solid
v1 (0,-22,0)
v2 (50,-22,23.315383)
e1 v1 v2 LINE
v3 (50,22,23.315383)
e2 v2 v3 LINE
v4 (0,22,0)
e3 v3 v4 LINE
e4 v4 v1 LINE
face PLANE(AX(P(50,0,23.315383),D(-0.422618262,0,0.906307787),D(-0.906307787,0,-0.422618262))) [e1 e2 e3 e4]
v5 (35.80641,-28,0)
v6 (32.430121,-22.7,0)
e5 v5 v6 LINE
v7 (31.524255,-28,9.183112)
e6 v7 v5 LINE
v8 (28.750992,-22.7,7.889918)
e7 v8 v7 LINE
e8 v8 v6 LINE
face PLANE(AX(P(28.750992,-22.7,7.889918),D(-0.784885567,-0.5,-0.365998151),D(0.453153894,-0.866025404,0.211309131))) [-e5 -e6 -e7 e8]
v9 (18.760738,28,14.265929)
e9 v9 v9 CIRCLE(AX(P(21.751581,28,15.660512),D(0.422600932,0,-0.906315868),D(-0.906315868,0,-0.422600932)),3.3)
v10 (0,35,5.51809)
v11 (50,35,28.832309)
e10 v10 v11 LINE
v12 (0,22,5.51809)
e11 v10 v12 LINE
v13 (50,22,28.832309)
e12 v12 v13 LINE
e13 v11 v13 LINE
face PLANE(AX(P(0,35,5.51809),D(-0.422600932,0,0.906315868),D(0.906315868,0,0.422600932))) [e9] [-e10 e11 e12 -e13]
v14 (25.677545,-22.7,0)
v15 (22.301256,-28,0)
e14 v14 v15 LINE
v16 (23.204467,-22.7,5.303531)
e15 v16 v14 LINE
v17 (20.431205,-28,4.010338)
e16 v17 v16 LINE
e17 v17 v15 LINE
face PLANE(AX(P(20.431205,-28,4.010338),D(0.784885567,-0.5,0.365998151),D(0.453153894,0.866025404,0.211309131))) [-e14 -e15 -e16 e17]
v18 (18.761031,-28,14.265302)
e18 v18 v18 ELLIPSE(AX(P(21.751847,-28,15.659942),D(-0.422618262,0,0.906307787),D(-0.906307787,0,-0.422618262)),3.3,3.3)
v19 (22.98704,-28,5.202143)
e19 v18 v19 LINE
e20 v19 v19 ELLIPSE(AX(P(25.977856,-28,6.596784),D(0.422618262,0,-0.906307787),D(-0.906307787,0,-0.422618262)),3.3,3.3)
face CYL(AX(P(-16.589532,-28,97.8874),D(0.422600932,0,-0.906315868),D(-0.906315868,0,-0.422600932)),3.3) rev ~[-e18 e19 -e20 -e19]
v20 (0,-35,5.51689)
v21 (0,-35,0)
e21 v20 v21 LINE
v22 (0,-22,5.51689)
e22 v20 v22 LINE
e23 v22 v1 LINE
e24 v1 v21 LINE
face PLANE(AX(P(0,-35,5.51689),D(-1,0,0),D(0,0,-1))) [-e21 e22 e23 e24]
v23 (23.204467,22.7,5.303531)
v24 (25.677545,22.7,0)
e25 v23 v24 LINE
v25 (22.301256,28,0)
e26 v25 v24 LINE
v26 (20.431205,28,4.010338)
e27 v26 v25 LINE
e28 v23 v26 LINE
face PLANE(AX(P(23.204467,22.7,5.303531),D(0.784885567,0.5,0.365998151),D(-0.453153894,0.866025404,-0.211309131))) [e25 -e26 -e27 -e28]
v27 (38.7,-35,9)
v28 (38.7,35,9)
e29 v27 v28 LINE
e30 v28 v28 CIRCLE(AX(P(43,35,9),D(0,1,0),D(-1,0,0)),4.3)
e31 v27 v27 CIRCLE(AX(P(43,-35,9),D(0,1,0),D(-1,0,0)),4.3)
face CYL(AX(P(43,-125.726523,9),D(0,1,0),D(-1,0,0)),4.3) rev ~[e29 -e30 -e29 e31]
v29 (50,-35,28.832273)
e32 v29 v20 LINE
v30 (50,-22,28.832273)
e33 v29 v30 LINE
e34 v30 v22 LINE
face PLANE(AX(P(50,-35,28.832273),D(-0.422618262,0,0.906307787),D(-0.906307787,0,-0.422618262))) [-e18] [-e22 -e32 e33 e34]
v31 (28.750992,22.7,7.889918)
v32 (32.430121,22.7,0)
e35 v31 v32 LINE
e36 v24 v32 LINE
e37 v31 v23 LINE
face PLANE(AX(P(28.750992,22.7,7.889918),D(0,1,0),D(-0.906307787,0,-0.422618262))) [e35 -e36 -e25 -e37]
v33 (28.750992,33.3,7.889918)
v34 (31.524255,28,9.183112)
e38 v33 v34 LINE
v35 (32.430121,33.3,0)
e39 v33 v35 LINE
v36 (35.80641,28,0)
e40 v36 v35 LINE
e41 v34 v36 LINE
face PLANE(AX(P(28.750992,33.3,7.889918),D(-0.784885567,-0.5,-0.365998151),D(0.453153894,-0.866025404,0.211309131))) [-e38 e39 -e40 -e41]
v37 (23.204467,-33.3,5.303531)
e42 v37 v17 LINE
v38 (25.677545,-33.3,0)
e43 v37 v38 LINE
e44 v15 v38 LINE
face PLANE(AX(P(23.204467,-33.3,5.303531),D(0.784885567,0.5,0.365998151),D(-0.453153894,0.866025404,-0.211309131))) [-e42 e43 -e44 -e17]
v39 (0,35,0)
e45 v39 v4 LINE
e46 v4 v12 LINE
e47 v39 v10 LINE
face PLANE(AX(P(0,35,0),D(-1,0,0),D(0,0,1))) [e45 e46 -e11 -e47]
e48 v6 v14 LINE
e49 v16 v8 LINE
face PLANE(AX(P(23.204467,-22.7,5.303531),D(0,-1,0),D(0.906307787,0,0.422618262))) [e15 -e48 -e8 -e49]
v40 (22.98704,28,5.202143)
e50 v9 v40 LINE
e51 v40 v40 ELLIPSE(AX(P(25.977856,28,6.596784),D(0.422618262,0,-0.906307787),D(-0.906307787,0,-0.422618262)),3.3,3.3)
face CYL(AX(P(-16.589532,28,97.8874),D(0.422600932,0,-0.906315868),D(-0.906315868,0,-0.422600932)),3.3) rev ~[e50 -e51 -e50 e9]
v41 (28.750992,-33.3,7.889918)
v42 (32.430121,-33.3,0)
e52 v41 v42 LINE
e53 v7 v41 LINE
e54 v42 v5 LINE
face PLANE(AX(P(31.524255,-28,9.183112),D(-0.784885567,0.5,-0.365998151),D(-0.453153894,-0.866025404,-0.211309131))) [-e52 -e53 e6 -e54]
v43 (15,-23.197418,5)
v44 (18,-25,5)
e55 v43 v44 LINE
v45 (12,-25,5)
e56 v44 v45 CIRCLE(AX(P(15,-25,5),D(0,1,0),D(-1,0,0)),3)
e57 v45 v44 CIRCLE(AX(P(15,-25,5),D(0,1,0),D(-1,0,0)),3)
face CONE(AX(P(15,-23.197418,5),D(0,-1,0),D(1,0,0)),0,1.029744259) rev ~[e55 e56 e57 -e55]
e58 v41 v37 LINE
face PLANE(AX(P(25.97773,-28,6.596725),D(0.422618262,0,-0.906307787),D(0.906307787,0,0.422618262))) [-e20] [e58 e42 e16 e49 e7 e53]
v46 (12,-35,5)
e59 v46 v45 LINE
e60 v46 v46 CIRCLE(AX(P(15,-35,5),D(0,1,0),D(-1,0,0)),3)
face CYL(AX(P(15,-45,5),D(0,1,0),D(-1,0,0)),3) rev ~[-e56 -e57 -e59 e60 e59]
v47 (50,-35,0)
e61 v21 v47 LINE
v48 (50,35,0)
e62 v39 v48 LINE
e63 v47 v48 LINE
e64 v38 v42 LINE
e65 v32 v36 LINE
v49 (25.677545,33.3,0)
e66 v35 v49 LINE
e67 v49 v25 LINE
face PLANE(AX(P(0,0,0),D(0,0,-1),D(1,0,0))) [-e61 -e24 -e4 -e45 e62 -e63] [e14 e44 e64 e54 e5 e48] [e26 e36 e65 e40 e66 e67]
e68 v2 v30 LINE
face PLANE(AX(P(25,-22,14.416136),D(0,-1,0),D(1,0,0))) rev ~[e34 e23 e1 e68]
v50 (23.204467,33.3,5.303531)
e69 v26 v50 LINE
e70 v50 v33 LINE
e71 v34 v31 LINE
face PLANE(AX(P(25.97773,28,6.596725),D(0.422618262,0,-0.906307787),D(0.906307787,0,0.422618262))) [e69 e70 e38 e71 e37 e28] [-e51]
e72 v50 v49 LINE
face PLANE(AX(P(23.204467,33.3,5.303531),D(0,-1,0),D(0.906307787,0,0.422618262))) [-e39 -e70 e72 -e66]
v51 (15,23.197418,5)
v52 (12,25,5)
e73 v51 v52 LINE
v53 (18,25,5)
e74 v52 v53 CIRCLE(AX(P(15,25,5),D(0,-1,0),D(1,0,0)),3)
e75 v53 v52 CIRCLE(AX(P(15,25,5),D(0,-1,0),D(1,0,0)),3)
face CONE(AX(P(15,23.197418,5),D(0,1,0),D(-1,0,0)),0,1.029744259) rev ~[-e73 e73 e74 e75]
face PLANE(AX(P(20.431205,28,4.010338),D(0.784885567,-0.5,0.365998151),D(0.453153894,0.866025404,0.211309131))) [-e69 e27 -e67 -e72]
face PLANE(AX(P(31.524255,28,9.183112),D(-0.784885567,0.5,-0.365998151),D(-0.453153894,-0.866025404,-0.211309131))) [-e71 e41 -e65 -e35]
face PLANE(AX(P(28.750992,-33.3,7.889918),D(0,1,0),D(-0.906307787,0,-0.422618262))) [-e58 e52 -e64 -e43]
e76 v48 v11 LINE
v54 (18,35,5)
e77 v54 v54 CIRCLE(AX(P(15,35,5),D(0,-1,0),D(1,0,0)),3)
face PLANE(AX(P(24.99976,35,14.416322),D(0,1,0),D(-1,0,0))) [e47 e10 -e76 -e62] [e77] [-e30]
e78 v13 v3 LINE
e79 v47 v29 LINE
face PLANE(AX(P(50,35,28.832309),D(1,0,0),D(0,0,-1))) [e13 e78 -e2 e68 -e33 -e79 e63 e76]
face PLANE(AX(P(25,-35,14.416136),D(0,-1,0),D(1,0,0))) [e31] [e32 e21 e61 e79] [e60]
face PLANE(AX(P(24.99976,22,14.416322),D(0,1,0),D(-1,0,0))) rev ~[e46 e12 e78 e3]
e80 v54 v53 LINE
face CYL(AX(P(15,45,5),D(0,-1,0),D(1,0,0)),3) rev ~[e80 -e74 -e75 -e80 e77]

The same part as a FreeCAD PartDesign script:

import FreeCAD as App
import Part
import Sketcher

V = App.Vector
Q = App.Units.Quantity


def add_polygon(sketch, points):
    """Adds a closed chain of lines whose ends are joined by coincident constraints."""
    first, n = sketch.GeometryCount, len(points)
    for a, b in zip(points, points[1:] + points[:1]):
        sketch.addGeometry(Part.LineSegment(App.Vector(*a, 0), App.Vector(*b, 0)), False)
    for i in range(n):
        sketch.addConstraint(Sketcher.Constraint("Coincident", first + i, 2, first + (i + 1) % n, 1))

doc = App.newDocument("Part")
params = doc.addObject("Spreadsheet::Sheet", "Params")
for row, (alias, value) in enumerate([
    ("sketch1_width", "50 mm"),
    ("pad1_length", "70 mm"),
    ("pad2_length", "13 mm"),
    ("pad3_length", "13 mm"),
    ("sketch4_diameter", "6.6 mm"),
    ("hole_diameter", "6.6 mm"),
    ("pocket1_length", "15 mm"),
    ("sketch6_diameter", "8.6 mm"),
    ("hole2_diameter", "8.6 mm"),
    ("sketch7_diameter", "6 mm"),
    ("hole3_diameter", "6 mm"),
    ("hole3_depth", "10 mm"),
    ("sketch8_diameter", "6 mm"),
    ("hole4_diameter", "6 mm"),
    ("hole4_depth", "10 mm"),
], start=1):
    params.set(f"A{row}", alias)
    params.set(f"B{row}", "=" + value)
    params.setAlias(f"B{row}", alias)

body = doc.addObject("PartDesign::Body", "Body")

# Sketch on XZ plane
sketch1 = body.newObject("Sketcher::SketchObject", "Sketch")
sketch1.AttachmentSupport = (doc.getObject("XZ_Plane"), [""])
sketch1.MapMode = "FlatFace"
add_polygon(sketch1, [(50, 23.315383), (0, 0), (50, 0)])  # lines 0-2
sketch1.addConstraint([
    Sketcher.Constraint("Horizontal", 1),
    Sketcher.Constraint("Vertical", 2),
    Sketcher.Constraint("Coincident", 0, 2, -1, 1),
    Sketcher.Constraint("DistanceX", 1, 1, 1, 2, 50.0),
    Sketcher.Constraint("Angle", 0, Q("-155 deg")),
])
sketch1.setExpression("Constraints[6]", "Params.sketch1_width")
pad1 = body.newObject("PartDesign::Pad", "Pad")
pad1.Profile = sketch1
pad1.setExpression("Length", "Params.pad1_length")
pad1.Midplane = True

# Sketch on XZ plane
sketch2 = body.newObject("Sketcher::SketchObject", "Sketch001")
sketch2.AttachmentSupport = (doc.getObject("XZ_Plane"), [""])
sketch2.MapMode = "FlatFace"
sketch2.AttachmentOffset = App.Placement(V(0, 0, 35), App.Rotation())
add_polygon(sketch2, [(0, 5.51689), (0, 0), (50, 23.315383), (50, 28.832273)])  # lines 0-3
sketch2.addConstraint([
    Sketcher.Constraint("Vertical", 0),
    Sketcher.Constraint("Vertical", 2),
    Sketcher.Constraint("Coincident", 0, 2, -1, 1),
    Sketcher.Constraint("Parallel", 1, 3),
    Sketcher.Constraint("Angle", 1, Q("25 deg")),
    Sketcher.Constraint("DistanceX", -1, 1, 1, 2, 50.0),
    Sketcher.Constraint("DistanceY", 0, 2, 0, 1, 5.51689),
])
pad2 = body.newObject("PartDesign::Pad", "Pad001")
pad2.Profile = sketch2
pad2.setExpression("Length", "Params.pad2_length")
pad2.Reversed = True

# Sketch on XZ plane
sketch3 = body.newObject("Sketcher::SketchObject", "Sketch002")
sketch3.AttachmentSupport = (doc.getObject("XZ_Plane"), [""])
sketch3.MapMode = "FlatFace"
sketch3.AttachmentOffset = App.Placement(V(0, 0, -35), App.Rotation())
add_polygon(sketch3, [(50, 28.832309), (50, 23.315383), (0, 0), (0, 5.51809)])  # lines 0-3
sketch3.addConstraint([
    Sketcher.Constraint("Vertical", 0),
    Sketcher.Constraint("Vertical", 2),
    Sketcher.Constraint("Coincident", 1, 2, -1, 1),
    Sketcher.Constraint("Angle", 1, Q("-155 deg")),
    Sketcher.Constraint("DistanceX", -1, 1, 0, 2, 50.0),
    Sketcher.Constraint("DistanceY", 2, 1, 2, 2, 5.51809),
    Sketcher.Constraint("DistanceY", 0, 2, 0, 1, 5.516926),
])
pad3 = body.newObject("PartDesign::Pad", "Pad002")
pad3.Profile = sketch3
pad3.setExpression("Length", "Params.pad3_length")

# Sketch on an angled plane
sketch4 = body.newObject("Sketcher::SketchObject", "Sketch003")
sketch4.Placement = App.Placement(V(-2.113483, 0, 4.532606), App.Rotation(V(0.906315868, 0, 0.422600932), V(0, 1, 0), V(-0.422600932, 0, 0.906315868), "ZXY"))
sketch4.addGeometry([
    Part.Circle(V(26.33195, 28, 0), V(0, 0, 1), 3.3),
    Part.Circle(V(26.33195, -28, 0), V(0, 0, 1), 3.3),
], False)
sketch4.addConstraint([
    Sketcher.Constraint("Equal", 0, 1),
    Sketcher.Constraint("Symmetric", 0, 3, 1, 3, -1),
    Sketcher.Constraint("Diameter", 0, 6.6),
    Sketcher.Constraint("DistanceY", -1, 1, 0, 3, 28.0),
    Sketcher.Constraint("DistanceX", -1, 1, 0, 3, 26.33195),
])
sketch4.setExpression("Constraints[2]", "Params.sketch4_diameter")
doc.recompute()
hole = body.newObject("PartDesign::Hole", "Hole")
hole.Profile = sketch4
hole.ThreadType = "None"
hole.setExpression("Diameter", "Params.hole_diameter")
hole.DepthType = "ThroughAll"

# Sketch on an angled plane
sketch5 = body.newObject("Sketcher::SketchObject", "Sketch004")
sketch5.Placement = App.Placement(V(2.113091, 0, -4.531539), App.Rotation(V(0.906307787, 0, 0.422618262), V(0, -1, 0), V(0.422618262, 0, -0.906307787), "ZXY"))
add_polygon(sketch5, [(20.211802, -28), (23.271759, -33.3), (29.391672, -33.3), (32.451628, -28), (29.391672, -22.7), (23.271759, -22.7)])  # lines 0-5
add_polygon(sketch5, [(20.211802, 28), (23.271759, 22.7), (29.391672, 22.7), (32.451628, 28), (29.391672, 33.3), (23.271759, 33.3)])  # lines 6-11
sketch5.addConstraint([
    Sketcher.Constraint("Horizontal", 1),
    Sketcher.Constraint("Horizontal", 4),
    Sketcher.Constraint("Horizontal", 7),
    Sketcher.Constraint("Horizontal", 10),
    Sketcher.Constraint("Symmetric", 4, 2, 6, 2, -1),
    Sketcher.Constraint("Symmetric", 2, 2, 8, 2, -1),
    Sketcher.Constraint("Symmetric", 1, 2, 9, 2, -1),
    Sketcher.Constraint("Symmetric", 5, 2, 11, 2, -1),
    Sketcher.Constraint("Parallel", 0, 3),
    Sketcher.Constraint("Parallel", 2, 5),
    Sketcher.Constraint("Parallel", 3, 6),
    Sketcher.Constraint("Parallel", 5, 8),
    Sketcher.Constraint("Parallel", 8, 11),
    Sketcher.Constraint("Horizontal", 2, 2, 5, 2),
    Sketcher.Constraint("Vertical", 1, 2, 3, 2),
    Sketcher.Constraint("Angle", 0, Q("-60 deg")),
    Sketcher.Constraint("DistanceY", 2, 2, -1, 1, 28.0),
    Sketcher.Constraint("DistanceY", 0, 2, -1, 1, 33.3),
    Sketcher.Constraint("DistanceX", 1, 1, 1, 2, 6.119913),
    Sketcher.Constraint("DistanceX", -1, 1, 0, 2, 23.271759),
])
pocket1 = body.newObject("PartDesign::Pocket", "Pocket")
pocket1.Profile = sketch5
pocket1.setExpression("Length", "Params.pocket1_length")
pocket1.Reversed = True

# Sketch on XZ plane
sketch6 = body.newObject("Sketcher::SketchObject", "Sketch005")
sketch6.AttachmentSupport = (doc.getObject("XZ_Plane"), [""])
sketch6.MapMode = "FlatFace"
sketch6.AttachmentOffset = App.Placement(V(0, 0, 35), App.Rotation())
sketch6.addGeometry(Part.Circle(V(43, 9, 0), V(0, 0, 1), 4.3), False)
sketch6.addConstraint([
    Sketcher.Constraint("Diameter", 0, 8.6),
    Sketcher.Constraint("DistanceX", -1, 1, 0, 3, 43.0),
    Sketcher.Constraint("DistanceY", -1, 1, 0, 3, 9.0),
])
sketch6.setExpression("Constraints[0]", "Params.sketch6_diameter")
doc.recompute()
hole2 = body.newObject("PartDesign::Hole", "Hole001")
hole2.Profile = sketch6
hole2.ThreadType = "None"
hole2.setExpression("Diameter", "Params.hole2_diameter")
hole2.DepthType = "ThroughAll"

# Sketch on XZ plane
sketch7 = body.newObject("Sketcher::SketchObject", "Sketch006")
sketch7.AttachmentSupport = (doc.getObject("XZ_Plane"), [""])
sketch7.MapMode = "FlatFace"
sketch7.AttachmentOffset = App.Placement(V(0, 0, 35), App.Rotation())
sketch7.addGeometry(Part.Circle(V(15, 5, 0), V(0, 0, 1), 3), False)
sketch7.addConstraint([
    Sketcher.Constraint("Diameter", 0, 6.0),
    Sketcher.Constraint("DistanceX", -1, 1, 0, 3, 15.0),
    Sketcher.Constraint("DistanceY", -1, 1, 0, 3, 5.0),
])
sketch7.setExpression("Constraints[0]", "Params.sketch7_diameter")
doc.recompute()
hole3 = body.newObject("PartDesign::Hole", "Hole002")
hole3.Profile = sketch7
hole3.ThreadType = "None"
hole3.setExpression("Diameter", "Params.hole3_diameter")
hole3.DepthType = "Dimension"
hole3.setExpression("Depth", "Params.hole3_depth")
hole3.DrillPoint = "Angled"
hole3.DrillPointAngle = 118

# Sketch on XZ plane
sketch8 = body.newObject("Sketcher::SketchObject", "Sketch007")
sketch8.AttachmentSupport = (doc.getObject("XZ_Plane"), [""])
sketch8.MapMode = "FlatFace"
sketch8.AttachmentOffset = App.Placement(V(0, 0, -35), App.Rotation())
sketch8.addGeometry(Part.Circle(V(15, 5, 0), V(0, 0, 1), 3), False)
sketch8.addConstraint([
    Sketcher.Constraint("Diameter", 0, 6.0),
    Sketcher.Constraint("DistanceX", -1, 1, 0, 3, 15.0),
    Sketcher.Constraint("DistanceY", -1, 1, 0, 3, 5.0),
])
sketch8.setExpression("Constraints[0]", "Params.sketch8_diameter")
doc.recompute()
hole4 = body.newObject("PartDesign::Hole", "Hole003")
hole4.Profile = sketch8
hole4.ThreadType = "None"
hole4.setExpression("Diameter", "Params.hole4_diameter")
hole4.DepthType = "Dimension"
hole4.setExpression("Depth", "Params.hole4_depth")
hole4.DrillPoint = "Angled"
hole4.DrillPointAngle = 118
hole4.Reversed = True

doc.recompute()
